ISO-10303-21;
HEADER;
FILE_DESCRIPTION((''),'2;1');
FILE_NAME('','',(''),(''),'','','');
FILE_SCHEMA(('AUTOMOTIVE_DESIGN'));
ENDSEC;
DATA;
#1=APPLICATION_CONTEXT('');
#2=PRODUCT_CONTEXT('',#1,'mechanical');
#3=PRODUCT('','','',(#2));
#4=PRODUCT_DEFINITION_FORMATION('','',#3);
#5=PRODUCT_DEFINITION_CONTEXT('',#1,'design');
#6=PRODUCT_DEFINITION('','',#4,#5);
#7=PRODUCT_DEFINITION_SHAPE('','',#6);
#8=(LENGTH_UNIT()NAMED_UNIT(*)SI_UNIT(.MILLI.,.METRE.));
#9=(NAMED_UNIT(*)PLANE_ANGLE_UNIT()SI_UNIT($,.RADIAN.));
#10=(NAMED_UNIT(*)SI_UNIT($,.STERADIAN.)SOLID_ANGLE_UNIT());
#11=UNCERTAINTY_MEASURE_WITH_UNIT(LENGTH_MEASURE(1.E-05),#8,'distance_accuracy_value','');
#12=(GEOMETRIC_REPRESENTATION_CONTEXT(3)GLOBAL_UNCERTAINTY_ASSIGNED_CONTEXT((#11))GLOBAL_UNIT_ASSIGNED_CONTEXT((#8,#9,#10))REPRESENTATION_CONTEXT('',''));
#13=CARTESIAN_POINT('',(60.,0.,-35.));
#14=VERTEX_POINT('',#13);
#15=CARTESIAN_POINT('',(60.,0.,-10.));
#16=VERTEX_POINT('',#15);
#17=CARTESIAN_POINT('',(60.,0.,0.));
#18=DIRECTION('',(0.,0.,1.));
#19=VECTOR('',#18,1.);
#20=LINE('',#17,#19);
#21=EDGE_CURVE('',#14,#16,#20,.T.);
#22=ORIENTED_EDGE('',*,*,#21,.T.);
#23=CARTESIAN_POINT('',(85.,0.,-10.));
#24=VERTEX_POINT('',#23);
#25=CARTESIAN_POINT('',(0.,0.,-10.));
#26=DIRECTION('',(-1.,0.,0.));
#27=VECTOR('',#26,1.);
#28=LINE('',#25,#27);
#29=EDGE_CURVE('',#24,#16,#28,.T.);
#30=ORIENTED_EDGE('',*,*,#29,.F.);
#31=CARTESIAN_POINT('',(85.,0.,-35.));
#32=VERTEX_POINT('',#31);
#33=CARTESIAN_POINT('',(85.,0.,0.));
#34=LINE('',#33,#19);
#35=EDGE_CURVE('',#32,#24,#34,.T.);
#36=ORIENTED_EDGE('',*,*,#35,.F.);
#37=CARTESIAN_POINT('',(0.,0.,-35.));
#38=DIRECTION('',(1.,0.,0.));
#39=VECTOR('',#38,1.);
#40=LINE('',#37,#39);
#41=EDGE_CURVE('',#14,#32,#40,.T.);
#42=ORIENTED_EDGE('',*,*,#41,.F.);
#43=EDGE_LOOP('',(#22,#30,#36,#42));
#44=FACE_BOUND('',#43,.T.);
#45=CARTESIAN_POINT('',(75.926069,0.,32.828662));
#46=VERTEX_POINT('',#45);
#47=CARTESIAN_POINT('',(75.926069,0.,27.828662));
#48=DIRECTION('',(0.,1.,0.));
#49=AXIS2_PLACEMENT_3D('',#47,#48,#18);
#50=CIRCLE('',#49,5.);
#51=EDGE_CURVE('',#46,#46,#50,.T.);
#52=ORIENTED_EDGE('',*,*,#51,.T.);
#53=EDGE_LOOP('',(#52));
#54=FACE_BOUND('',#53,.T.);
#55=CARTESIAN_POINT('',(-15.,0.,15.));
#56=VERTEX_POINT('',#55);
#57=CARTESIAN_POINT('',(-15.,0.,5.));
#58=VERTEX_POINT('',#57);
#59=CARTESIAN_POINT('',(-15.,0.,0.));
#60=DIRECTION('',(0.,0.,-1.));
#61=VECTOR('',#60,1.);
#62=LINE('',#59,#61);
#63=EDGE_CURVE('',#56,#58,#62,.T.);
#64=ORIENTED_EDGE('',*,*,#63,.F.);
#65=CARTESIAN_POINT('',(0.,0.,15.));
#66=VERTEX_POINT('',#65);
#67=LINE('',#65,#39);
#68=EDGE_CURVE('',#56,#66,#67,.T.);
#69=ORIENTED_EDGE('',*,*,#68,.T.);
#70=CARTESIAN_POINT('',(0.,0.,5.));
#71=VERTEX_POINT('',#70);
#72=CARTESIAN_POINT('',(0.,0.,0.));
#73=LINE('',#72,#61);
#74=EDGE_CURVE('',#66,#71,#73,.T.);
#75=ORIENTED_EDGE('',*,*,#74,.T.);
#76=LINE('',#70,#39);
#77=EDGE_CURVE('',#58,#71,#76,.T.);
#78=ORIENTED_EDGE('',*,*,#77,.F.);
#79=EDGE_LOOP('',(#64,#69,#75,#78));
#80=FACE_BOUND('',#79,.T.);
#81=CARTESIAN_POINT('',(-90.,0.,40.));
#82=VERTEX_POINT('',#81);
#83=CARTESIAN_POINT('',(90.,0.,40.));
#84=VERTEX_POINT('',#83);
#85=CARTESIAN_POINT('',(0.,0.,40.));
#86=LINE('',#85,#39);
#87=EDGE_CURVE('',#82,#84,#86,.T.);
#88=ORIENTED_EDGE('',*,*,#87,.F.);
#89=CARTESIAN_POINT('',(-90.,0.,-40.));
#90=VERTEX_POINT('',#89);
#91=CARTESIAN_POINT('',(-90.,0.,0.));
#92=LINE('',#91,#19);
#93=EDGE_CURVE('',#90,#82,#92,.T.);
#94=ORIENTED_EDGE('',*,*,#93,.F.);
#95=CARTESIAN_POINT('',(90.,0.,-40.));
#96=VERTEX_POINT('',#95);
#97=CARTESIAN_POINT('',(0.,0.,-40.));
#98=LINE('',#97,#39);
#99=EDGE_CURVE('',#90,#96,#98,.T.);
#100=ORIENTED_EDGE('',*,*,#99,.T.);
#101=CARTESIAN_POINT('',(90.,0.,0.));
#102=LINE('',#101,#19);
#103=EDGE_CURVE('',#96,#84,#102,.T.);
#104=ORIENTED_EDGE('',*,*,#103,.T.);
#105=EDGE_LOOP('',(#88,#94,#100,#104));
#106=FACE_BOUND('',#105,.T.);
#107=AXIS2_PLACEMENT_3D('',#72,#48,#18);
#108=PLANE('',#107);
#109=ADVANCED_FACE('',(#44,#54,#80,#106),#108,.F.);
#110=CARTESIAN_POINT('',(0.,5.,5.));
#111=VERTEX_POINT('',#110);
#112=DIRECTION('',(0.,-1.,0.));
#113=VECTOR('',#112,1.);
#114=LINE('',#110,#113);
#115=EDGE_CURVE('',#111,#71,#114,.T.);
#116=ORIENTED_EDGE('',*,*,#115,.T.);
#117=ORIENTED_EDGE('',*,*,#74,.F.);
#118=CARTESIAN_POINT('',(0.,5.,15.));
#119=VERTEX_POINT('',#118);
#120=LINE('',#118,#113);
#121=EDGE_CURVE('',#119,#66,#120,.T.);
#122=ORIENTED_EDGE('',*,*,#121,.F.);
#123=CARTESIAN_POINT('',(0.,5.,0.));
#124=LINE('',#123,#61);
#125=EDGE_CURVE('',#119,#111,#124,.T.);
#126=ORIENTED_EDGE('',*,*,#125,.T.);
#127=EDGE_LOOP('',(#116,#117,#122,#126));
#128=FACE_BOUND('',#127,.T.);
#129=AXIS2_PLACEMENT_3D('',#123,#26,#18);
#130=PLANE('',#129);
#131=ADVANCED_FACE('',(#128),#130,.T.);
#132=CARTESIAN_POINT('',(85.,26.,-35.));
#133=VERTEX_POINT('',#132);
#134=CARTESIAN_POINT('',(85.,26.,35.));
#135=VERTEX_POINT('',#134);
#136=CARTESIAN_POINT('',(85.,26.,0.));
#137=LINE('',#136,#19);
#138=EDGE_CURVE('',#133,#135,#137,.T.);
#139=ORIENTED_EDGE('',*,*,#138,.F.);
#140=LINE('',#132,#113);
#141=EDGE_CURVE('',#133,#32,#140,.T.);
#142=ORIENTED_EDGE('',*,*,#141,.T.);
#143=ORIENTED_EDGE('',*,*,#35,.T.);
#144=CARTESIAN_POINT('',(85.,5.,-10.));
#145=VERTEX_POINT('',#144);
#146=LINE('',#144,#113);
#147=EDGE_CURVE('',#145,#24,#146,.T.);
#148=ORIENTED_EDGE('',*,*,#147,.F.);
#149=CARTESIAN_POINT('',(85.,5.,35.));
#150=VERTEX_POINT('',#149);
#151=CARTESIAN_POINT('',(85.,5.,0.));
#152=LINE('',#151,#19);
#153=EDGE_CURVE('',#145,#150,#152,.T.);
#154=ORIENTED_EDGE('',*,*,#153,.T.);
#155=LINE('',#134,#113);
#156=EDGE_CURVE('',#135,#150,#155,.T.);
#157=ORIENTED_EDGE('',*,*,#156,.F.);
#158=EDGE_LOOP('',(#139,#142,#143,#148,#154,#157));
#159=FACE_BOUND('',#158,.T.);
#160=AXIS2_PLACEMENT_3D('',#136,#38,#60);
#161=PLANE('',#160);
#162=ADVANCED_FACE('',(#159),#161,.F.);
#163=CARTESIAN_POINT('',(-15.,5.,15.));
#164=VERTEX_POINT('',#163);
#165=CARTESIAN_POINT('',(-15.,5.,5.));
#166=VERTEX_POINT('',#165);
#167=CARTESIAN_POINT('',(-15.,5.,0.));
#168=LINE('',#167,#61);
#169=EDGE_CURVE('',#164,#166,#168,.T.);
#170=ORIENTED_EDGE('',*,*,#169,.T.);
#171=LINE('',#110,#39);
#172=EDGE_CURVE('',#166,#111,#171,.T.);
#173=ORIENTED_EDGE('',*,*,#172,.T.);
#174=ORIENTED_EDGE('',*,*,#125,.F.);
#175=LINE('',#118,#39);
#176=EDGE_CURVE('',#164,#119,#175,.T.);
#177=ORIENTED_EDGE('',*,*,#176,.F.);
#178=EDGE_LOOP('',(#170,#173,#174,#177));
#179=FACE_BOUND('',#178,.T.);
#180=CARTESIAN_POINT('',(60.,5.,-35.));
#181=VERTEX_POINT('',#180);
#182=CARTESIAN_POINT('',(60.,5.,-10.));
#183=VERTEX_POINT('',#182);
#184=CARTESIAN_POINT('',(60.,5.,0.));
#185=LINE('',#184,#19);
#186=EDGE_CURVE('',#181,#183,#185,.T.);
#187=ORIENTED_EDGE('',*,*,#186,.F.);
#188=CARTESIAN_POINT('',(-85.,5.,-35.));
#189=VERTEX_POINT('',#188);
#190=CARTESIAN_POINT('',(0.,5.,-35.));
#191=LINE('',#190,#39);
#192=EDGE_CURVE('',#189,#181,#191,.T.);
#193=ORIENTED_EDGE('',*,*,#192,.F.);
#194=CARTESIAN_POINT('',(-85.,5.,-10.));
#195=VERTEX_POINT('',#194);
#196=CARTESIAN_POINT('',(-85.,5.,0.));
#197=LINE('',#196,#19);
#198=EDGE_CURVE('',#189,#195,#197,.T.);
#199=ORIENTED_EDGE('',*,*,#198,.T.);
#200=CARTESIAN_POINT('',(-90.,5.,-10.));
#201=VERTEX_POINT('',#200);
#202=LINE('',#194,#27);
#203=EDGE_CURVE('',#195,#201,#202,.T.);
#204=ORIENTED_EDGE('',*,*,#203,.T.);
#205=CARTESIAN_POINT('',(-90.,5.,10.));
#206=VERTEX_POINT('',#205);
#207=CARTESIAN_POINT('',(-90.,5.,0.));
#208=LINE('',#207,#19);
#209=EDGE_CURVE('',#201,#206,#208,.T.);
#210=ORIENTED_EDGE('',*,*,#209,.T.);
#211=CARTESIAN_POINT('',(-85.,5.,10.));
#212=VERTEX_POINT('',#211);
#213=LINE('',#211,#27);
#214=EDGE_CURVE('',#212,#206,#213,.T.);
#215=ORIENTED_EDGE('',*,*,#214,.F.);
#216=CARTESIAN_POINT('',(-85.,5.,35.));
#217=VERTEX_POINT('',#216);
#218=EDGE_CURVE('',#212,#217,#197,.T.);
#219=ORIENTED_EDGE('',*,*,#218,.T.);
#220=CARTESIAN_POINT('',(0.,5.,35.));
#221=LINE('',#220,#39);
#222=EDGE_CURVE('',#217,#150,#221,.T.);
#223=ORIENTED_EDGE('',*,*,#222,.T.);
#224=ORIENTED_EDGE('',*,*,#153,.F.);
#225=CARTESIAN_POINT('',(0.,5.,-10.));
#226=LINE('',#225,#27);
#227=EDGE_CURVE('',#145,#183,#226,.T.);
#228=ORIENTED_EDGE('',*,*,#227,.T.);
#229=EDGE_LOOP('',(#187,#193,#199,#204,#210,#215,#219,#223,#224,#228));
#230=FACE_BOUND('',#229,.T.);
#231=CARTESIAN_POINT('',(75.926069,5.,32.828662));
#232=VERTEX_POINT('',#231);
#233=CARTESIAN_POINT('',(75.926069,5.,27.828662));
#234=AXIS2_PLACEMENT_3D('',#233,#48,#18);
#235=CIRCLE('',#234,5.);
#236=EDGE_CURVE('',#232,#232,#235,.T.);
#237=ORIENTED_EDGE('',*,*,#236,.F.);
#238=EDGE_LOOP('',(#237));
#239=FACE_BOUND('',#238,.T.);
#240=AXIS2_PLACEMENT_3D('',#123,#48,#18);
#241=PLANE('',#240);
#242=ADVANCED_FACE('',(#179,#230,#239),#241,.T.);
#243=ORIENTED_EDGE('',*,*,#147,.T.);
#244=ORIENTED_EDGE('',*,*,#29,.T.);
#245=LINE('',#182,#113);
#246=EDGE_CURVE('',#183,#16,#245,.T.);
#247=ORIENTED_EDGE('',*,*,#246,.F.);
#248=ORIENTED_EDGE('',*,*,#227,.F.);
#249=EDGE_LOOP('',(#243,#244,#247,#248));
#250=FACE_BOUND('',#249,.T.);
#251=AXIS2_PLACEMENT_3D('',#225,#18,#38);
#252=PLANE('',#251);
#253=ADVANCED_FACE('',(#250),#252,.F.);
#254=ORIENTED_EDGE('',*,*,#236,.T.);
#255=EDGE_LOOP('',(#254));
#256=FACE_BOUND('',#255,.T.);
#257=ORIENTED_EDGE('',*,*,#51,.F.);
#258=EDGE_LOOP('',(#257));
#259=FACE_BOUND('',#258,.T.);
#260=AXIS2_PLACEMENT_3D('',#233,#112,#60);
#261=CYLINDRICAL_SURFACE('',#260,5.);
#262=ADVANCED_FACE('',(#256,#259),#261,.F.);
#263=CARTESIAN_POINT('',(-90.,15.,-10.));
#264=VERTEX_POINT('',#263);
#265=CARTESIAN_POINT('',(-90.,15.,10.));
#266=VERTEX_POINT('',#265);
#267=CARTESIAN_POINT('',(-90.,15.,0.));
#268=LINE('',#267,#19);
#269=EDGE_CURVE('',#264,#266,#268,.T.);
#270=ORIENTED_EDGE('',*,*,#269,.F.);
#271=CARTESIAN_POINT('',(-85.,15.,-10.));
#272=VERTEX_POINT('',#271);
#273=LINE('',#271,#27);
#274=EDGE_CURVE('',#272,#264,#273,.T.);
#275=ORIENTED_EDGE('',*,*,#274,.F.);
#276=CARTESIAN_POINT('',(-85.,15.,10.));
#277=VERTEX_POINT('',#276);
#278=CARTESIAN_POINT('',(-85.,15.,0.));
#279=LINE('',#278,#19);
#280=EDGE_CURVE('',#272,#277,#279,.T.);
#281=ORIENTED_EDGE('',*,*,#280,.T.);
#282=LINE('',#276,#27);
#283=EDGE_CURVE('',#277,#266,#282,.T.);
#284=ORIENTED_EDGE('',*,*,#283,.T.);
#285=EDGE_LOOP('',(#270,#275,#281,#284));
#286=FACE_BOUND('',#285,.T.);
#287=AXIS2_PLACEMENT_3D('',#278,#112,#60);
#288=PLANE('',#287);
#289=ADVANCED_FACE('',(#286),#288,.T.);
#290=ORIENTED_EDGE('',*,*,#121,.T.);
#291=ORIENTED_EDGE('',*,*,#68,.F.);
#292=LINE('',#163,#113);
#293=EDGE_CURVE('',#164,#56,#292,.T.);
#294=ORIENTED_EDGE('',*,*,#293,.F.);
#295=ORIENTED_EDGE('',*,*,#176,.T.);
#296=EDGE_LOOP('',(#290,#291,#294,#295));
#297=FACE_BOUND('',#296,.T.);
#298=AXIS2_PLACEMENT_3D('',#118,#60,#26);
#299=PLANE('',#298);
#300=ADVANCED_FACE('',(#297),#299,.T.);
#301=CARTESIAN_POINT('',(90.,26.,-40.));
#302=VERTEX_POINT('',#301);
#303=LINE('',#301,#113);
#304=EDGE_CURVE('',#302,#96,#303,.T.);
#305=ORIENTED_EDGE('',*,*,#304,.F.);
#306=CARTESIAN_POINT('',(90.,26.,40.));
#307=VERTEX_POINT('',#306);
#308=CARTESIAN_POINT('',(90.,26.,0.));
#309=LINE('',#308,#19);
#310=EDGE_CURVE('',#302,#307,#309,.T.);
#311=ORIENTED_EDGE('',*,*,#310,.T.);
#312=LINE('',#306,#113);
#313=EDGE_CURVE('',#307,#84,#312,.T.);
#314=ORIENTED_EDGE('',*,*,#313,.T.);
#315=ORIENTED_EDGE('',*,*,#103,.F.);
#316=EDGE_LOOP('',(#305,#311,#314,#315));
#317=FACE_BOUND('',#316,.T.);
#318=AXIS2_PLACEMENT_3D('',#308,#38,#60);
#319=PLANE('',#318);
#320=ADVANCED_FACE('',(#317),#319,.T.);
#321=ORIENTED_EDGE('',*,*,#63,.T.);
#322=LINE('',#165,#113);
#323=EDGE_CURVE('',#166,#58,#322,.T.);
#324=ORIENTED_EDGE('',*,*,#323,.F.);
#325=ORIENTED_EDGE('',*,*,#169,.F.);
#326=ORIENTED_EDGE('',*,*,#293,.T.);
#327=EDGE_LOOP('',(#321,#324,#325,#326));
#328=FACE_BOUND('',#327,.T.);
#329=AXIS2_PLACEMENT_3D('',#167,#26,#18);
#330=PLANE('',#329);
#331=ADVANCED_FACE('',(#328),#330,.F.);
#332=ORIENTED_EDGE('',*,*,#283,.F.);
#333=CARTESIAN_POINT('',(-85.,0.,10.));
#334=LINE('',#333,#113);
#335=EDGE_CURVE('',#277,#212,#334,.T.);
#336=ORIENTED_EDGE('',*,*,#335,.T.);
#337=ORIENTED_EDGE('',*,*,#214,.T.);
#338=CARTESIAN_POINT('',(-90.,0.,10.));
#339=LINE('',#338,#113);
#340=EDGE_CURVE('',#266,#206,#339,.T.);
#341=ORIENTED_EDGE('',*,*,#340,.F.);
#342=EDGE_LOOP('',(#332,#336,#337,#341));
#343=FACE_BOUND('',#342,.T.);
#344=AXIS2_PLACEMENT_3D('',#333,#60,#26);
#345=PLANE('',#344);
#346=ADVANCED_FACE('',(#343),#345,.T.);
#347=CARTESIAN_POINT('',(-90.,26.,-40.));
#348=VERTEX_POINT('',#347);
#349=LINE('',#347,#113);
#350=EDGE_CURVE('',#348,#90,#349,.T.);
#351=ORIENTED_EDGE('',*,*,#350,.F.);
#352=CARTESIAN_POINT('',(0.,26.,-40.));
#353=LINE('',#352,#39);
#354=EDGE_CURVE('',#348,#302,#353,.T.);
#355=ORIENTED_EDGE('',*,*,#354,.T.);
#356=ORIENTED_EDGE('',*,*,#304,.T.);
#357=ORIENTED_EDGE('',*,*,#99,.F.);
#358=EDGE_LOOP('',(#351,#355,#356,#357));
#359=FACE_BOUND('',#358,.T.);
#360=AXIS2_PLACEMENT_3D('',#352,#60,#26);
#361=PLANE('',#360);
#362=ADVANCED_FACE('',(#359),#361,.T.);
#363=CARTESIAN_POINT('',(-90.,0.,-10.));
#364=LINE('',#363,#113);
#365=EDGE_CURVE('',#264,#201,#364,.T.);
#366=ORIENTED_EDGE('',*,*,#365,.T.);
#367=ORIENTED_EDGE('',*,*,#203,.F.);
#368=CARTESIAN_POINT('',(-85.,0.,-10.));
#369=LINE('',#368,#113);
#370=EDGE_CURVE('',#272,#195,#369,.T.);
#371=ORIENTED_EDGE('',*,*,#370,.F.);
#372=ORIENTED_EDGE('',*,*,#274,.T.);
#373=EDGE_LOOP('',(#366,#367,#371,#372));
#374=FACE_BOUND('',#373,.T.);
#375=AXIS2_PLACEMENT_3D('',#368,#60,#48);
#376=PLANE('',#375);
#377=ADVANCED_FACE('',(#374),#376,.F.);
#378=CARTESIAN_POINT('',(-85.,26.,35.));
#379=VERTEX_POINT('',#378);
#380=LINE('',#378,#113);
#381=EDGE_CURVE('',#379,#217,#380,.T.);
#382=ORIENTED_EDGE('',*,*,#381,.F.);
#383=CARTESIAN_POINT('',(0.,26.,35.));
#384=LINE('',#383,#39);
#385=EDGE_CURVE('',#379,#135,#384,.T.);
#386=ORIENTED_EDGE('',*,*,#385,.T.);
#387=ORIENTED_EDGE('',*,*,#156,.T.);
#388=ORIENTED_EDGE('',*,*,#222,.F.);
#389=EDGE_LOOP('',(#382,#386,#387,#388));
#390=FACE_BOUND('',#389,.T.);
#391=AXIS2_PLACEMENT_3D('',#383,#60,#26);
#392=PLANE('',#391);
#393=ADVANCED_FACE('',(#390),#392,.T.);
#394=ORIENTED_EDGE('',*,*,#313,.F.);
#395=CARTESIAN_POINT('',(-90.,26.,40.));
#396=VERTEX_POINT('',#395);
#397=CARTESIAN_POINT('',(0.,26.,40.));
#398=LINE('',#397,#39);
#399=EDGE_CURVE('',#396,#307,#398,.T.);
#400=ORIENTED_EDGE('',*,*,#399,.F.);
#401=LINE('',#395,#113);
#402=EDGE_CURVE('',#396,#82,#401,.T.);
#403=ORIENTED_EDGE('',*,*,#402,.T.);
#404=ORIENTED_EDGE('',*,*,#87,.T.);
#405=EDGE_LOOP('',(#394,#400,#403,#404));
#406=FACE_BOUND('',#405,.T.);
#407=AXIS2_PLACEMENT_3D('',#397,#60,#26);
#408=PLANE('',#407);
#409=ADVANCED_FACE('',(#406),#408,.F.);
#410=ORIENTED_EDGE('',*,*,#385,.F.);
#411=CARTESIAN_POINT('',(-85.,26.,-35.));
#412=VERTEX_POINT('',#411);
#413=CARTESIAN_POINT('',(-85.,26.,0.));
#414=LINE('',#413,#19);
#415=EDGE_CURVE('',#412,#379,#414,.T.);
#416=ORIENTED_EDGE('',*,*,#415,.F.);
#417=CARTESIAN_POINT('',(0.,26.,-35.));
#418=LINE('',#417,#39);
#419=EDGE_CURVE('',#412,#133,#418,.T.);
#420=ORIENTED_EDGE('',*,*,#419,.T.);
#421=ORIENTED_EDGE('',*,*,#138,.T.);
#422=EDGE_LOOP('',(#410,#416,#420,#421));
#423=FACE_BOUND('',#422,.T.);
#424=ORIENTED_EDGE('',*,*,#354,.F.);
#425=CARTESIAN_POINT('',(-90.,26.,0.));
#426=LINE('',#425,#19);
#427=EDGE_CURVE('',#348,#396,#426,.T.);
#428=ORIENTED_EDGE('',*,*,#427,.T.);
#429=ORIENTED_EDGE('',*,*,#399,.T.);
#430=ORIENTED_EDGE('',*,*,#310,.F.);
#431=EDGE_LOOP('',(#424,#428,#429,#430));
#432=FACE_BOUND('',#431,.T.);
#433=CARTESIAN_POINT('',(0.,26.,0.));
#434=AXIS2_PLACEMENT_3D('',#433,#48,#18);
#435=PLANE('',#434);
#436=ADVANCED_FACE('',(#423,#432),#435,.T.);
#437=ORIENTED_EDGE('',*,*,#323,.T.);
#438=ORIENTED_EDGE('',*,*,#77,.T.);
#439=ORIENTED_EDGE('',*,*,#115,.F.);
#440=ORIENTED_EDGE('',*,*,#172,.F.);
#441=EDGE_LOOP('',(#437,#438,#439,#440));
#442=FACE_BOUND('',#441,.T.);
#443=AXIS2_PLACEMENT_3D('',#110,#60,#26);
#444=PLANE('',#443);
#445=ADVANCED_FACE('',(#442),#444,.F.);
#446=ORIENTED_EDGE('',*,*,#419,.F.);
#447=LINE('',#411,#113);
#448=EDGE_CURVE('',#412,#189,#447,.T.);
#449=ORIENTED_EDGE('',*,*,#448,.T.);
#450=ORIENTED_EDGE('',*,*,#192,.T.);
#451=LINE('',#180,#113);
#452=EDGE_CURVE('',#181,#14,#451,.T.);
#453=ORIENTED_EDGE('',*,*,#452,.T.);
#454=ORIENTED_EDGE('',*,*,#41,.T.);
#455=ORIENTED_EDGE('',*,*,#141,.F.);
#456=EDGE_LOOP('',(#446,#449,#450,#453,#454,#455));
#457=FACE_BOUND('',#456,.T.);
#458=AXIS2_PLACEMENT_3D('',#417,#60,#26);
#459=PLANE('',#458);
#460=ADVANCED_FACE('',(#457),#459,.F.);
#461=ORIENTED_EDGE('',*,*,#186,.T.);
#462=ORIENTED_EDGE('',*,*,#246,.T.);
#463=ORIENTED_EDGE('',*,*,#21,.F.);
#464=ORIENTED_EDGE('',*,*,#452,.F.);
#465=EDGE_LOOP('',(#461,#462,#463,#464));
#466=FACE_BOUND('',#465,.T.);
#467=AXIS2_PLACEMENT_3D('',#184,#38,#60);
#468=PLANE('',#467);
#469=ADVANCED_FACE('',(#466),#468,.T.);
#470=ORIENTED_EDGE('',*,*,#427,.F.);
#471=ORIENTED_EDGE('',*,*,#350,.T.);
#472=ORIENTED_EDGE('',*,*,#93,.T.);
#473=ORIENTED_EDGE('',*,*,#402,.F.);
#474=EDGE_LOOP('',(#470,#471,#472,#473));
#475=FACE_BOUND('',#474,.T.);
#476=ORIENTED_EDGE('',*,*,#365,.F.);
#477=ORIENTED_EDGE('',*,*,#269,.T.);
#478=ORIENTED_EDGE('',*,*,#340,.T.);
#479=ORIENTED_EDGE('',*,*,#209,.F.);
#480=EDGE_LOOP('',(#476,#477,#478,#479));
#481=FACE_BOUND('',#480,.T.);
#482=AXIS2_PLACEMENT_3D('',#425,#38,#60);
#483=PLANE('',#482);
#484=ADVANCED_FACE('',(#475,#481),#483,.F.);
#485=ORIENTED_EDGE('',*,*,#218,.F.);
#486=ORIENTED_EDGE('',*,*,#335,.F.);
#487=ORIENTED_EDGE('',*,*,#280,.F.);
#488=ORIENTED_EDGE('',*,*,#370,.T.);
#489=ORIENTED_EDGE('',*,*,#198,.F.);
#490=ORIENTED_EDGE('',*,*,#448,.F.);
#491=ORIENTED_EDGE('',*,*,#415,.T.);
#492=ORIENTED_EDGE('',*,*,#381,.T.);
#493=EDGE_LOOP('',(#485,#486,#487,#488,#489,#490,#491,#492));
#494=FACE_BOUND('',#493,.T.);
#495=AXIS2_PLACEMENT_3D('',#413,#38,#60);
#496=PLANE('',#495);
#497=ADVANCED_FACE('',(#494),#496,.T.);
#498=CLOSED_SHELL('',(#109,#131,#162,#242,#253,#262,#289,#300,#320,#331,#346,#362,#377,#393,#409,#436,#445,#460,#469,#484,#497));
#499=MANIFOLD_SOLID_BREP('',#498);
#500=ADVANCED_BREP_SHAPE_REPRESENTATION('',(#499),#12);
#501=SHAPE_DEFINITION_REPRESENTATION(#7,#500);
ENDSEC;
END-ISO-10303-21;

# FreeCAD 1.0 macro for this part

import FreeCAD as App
import Part
import Sketcher

V = App.Vector


def add_polygon(sketch, points):
    """Adds a closed chain of lines whose ends are joined by coincident constraints."""
    first, n = sketch.GeometryCount, len(points)
    for a, b in zip(points, points[1:] + points[:1]):
        sketch.addGeometry(Part.LineSegment(App.Vector(*a, 0), App.Vector(*b, 0)), False)
    for i in range(n):
        sketch.addConstraint(Sketcher.Constraint("Coincident", first + i, 2, first + (i + 1) % n, 1))

doc = App.newDocument("Part")
body = doc.addObject("PartDesign::Body", "Body")

# Sketch on XZ plane
sketch1 = body.newObject("Sketcher::SketchObject", "Sketch")
sketch1.AttachmentSupport = (doc.getObject("XZ_Plane"), [""])
sketch1.MapMode = "FlatFace"
add_polygon(sketch1, [(-90, -40), (-90, 40), (90, 40), (90, -40)])  # lines 0-3
add_polygon(sketch1, [(85, 35), (-85, 35), (-85, -35), (85, -35)])  # lines 4-7
sketch1.addConstraint([
    Sketcher.Constraint("Vertical", 0),
    Sketcher.Constraint("Horizontal", 1),
    Sketcher.Constraint("Vertical", 2),
    Sketcher.Constraint("Horizontal", 3),
    Sketcher.Constraint("Horizontal", 4),
    Sketcher.Constraint("Vertical", 5),
    Sketcher.Constraint("Horizontal", 6),
    Sketcher.Constraint("Vertical", 7),
    Sketcher.Constraint("Symmetric", 0, 2, 2, 2, -1, 1),
    Sketcher.Constraint("Symmetric", 4, 2, 6, 2, -1, 1),
    Sketcher.Constraint("DistanceX", 1, 1, 1, 2, 180.0),
    Sketcher.Constraint("DistanceX", 4, 2, 4, 1, 170.0),
    Sketcher.Constraint("DistanceY", 0, 1, 0, 2, 80.0),
    Sketcher.Constraint("DistanceY", 5, 2, 5, 1, 70.0),
])
pad1 = body.newObject("PartDesign::Pad", "Pad")
pad1.Profile = sketch1
pad1.Length = 26
pad1.Reversed = True

# Sketch on XZ plane
sketch2 = body.newObject("Sketcher::SketchObject", "Sketch001")
sketch2.AttachmentSupport = (doc.getObject("XZ_Plane"), [""])
sketch2.MapMode = "FlatFace"
add_polygon(sketch2, [(-85, 35), (85, 35), (85, -10), (60, -10), (60, -35), (-85, -35)])  # lines 0-5
add_polygon(sketch2, [(-15, 15), (-15, 5), (0, 5), (0, 15)])  # lines 6-9
sketch2.addGeometry(Part.Circle(V(76, 28, 0), V(0, 0, 1), 5), False)  # 10
sketch2.addConstraint([
    Sketcher.Constraint("Horizontal", 0),
    Sketcher.Constraint("Vertical", 1),
    Sketcher.Constraint("Horizontal", 2),
    Sketcher.Constraint("Vertical", 3),
    Sketcher.Constraint("Horizontal", 4),
    Sketcher.Constraint("Vertical", 5),
    Sketcher.Constraint("Vertical", 6),
    Sketcher.Constraint("Horizontal", 7),
    Sketcher.Constraint("Vertical", 8),
    Sketcher.Constraint("Horizontal", 9),
    Sketcher.Constraint("Symmetric", 0, 2, 4, 2, -1, 1),
    Sketcher.Constraint("PointOnObject", 7, 2, -2),
    Sketcher.Constraint("Equal", 2, 3),
    Sketcher.Constraint("Diameter", 10, 10.0),
    Sketcher.Constraint("DistanceX", 0, 1, 0, 2, 170.0),
    Sketcher.Constraint("DistanceX", 2, 2, 2, 1, 25.0),
    Sketcher.Constraint("DistanceX", 7, 1, 7, 2, 15.0),
    Sketcher.Constraint("DistanceY", 1, 2, 1, 1, 45.0),
    Sketcher.Constraint("DistanceY", 6, 2, 6, 1, 10.0),
    Sketcher.Constraint("DistanceY", -1, 1, 6, 2, 5.0),
    Sketcher.Constraint("DistanceX", -1, 1, 10, 3, 75.926069),
    Sketcher.Constraint("DistanceY", -1, 1, 10, 3, 27.828662),
])
pad2 = body.newObject("PartDesign::Pad", "Pad001")
pad2.Profile = sketch2
pad2.Length = 5
pad2.Reversed = True

# Sketch on YZ plane
sketch3 = body.newObject("Sketcher::SketchObject", "Sketch002")
sketch3.AttachmentSupport = (doc.getObject("YZ_Plane"), [""])
sketch3.MapMode = "FlatFace"
sketch3.AttachmentOffset = App.Placement(V(0, 0, -90), App.Rotation())
add_polygon(sketch3, [(5, -10), (5, 10), (15, 10), (15, -10)])  # lines 0-3
sketch3.addConstraint([
    Sketcher.Constraint("Vertical", 0),
    Sketcher.Constraint("Horizontal", 1),
    Sketcher.Constraint("Vertical", 2),
    Sketcher.Constraint("Horizontal", 3),
    Sketcher.Constraint("DistanceX", 1, 1, 1, 2, 10.0),
    Sketcher.Constraint("DistanceY", 0, 1, 0, 2, 20.0),
    Sketcher.Constraint("DistanceX", -1, 1, 0, 2, 5.0),
    Sketcher.Constraint("DistanceY", -1, 1, 0, 2, 10.0),
])
pocket1 = body.newObject("PartDesign::Pocket", "Pocket")
pocket1.Profile = sketch3
pocket1.Length = 5
pocket1.Reversed = True

doc.recompute()
